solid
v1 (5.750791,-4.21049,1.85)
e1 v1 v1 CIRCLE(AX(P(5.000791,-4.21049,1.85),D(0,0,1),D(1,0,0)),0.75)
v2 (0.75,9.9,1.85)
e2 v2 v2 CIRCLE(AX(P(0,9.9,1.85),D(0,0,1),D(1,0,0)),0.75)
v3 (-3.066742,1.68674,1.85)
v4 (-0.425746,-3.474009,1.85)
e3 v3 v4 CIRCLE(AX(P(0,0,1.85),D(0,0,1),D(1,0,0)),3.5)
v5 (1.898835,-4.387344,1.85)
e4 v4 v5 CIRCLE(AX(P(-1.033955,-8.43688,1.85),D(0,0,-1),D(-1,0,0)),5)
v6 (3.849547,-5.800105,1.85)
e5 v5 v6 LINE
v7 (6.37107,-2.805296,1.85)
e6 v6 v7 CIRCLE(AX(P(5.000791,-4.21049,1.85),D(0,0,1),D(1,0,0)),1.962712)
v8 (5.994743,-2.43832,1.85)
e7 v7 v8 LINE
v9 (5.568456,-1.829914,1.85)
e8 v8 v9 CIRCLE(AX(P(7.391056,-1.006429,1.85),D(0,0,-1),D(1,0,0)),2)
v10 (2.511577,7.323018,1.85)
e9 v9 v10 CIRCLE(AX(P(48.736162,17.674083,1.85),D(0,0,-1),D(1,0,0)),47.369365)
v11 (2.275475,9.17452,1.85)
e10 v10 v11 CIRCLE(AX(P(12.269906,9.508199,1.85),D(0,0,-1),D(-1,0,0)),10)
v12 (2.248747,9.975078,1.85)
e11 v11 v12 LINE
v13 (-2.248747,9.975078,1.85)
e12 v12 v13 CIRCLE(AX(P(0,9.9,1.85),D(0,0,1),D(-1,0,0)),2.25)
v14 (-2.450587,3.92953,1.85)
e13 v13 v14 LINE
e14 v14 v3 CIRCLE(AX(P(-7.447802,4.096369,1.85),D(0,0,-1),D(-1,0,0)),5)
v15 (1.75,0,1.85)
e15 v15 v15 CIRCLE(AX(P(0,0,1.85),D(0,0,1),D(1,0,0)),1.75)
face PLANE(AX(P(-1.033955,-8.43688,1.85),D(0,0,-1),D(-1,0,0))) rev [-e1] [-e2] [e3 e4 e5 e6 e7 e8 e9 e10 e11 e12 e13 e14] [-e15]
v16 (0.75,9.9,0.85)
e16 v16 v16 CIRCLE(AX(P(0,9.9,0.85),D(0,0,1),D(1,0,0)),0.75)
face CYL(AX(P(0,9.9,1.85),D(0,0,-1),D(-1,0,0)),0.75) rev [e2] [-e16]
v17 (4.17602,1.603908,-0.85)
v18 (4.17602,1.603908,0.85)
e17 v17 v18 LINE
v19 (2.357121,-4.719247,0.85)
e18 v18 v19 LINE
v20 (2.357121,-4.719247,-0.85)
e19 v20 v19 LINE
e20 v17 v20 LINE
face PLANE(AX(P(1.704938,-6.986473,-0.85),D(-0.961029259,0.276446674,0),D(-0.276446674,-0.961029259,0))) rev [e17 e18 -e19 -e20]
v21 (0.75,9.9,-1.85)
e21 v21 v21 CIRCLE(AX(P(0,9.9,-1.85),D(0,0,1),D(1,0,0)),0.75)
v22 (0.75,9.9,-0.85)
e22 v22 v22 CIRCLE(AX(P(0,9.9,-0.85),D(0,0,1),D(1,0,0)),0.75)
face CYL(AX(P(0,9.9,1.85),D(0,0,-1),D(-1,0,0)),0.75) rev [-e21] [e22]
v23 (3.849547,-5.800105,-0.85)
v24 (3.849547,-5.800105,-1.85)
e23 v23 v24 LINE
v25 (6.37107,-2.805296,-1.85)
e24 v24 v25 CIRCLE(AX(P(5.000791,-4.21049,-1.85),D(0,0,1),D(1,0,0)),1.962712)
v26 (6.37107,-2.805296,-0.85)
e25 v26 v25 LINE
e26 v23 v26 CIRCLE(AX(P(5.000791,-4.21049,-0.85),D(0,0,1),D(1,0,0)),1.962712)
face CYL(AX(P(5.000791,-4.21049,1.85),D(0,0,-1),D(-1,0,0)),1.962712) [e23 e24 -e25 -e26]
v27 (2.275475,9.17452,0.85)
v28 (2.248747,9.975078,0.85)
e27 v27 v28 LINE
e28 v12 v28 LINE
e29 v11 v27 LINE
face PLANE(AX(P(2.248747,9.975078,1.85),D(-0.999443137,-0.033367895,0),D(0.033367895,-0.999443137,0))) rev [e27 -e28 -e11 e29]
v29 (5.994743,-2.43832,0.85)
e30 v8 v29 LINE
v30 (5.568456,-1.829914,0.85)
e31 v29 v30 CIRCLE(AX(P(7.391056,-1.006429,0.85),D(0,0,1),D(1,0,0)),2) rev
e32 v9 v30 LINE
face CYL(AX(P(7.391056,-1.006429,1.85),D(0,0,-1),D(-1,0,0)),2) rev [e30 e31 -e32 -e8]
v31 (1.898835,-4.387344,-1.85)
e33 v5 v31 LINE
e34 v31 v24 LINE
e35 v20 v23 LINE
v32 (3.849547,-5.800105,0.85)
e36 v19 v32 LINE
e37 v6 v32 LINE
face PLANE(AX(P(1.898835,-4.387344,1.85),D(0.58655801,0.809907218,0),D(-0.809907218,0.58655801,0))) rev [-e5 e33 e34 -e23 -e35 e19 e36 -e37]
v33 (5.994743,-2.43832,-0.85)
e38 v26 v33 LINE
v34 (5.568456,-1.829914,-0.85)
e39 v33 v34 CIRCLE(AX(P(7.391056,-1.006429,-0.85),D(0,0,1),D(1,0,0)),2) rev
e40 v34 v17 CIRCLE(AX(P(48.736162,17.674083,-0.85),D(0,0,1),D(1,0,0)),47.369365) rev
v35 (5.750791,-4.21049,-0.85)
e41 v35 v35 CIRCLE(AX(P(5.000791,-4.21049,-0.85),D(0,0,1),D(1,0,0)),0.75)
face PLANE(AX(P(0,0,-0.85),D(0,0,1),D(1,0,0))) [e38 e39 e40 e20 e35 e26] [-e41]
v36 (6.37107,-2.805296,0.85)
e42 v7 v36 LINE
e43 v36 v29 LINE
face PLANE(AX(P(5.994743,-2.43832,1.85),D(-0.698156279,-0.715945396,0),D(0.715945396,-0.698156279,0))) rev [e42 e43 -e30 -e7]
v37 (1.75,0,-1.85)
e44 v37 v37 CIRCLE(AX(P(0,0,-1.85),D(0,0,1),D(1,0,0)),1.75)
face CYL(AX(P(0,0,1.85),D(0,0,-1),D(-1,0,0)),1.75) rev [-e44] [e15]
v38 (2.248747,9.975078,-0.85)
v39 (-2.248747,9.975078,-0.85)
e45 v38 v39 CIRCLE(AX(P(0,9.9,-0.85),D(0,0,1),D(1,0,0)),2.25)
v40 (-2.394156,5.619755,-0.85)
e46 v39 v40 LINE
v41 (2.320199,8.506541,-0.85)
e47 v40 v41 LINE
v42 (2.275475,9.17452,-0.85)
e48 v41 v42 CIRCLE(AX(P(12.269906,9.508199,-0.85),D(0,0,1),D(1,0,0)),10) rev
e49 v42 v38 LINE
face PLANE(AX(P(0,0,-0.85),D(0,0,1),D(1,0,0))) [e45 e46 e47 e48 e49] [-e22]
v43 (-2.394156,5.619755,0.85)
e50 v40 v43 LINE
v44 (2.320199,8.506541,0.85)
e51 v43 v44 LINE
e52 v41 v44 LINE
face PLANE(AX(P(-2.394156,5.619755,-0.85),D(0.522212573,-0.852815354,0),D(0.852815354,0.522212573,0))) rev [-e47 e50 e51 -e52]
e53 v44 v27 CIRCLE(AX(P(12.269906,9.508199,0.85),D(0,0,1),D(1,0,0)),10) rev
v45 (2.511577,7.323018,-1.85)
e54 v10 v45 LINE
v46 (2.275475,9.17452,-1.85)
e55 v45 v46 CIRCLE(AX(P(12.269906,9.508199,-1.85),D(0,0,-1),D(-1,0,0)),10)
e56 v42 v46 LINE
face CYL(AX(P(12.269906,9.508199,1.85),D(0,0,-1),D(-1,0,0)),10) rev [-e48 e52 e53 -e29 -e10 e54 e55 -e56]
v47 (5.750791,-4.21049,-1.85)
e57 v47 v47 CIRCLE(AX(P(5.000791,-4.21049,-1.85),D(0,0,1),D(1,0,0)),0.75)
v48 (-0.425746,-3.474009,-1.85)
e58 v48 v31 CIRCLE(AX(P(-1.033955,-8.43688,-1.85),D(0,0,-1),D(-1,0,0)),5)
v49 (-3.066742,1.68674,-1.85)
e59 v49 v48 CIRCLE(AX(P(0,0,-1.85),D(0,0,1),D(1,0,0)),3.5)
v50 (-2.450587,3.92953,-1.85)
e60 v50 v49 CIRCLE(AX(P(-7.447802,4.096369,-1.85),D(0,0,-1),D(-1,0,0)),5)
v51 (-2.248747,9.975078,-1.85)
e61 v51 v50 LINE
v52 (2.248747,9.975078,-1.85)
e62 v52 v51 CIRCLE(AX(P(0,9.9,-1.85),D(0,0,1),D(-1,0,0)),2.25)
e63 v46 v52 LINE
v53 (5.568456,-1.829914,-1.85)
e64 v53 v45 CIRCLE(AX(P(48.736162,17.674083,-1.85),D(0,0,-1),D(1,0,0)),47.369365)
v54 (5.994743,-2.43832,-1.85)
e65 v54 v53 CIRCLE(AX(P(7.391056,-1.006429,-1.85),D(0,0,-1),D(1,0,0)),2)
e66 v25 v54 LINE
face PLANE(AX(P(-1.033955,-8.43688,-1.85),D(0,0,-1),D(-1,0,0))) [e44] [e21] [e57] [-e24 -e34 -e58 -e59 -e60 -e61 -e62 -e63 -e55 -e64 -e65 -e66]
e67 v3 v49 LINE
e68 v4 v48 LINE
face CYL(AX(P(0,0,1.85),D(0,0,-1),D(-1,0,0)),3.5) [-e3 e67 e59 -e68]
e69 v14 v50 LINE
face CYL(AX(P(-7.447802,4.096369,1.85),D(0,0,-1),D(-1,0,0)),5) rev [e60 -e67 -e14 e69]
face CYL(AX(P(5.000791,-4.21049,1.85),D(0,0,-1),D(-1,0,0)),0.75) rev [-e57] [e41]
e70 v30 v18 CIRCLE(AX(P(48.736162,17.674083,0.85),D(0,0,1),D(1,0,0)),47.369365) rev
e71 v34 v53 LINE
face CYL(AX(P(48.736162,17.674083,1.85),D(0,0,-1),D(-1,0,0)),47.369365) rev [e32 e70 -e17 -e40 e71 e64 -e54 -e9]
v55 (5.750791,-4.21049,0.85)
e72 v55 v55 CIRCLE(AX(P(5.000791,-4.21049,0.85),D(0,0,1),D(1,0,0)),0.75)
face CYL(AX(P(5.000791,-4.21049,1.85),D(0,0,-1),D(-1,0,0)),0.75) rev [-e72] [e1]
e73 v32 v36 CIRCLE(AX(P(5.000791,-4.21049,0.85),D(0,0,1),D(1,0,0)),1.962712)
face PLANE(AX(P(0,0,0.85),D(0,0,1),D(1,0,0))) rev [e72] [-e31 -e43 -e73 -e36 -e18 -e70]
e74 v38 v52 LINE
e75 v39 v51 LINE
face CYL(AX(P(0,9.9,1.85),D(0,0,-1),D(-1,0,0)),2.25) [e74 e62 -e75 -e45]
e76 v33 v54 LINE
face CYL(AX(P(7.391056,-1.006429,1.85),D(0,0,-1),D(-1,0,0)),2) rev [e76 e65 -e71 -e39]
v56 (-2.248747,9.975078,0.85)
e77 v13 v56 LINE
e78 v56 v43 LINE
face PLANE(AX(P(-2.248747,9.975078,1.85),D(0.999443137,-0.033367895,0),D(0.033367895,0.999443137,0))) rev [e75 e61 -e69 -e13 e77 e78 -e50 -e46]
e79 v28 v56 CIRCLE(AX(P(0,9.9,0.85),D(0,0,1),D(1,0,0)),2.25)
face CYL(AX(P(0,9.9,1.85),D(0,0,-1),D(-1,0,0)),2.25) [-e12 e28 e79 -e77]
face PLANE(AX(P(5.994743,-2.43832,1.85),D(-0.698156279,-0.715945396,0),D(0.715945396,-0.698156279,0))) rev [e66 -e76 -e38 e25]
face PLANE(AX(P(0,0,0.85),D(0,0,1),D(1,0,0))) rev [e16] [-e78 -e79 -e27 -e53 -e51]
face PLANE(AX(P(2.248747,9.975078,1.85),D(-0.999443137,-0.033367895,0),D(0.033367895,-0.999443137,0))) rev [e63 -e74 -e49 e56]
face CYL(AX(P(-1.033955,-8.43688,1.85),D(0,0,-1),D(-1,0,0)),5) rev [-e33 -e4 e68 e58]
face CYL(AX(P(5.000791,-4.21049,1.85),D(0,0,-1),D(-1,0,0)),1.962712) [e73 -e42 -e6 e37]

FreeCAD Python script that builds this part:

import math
import FreeCAD as App
import Part
import Sketcher
from FreeCAD import Vector
Q = App.Units.Quantity

doc = App.newDocument("Part")
body = doc.addObject("PartDesign::Body", "Body")

sketch1 = doc.addObject("Sketcher::SketchObject", "Sketch")
body.addObject(sketch1)
sketch1.AttachmentSupport = (doc.XY_Plane, [""])
sketch1.MapMode = "FlatFace"
sketch1.addGeometry([
    Part.LineSegment(Vector(-2.248747, 9.975078, 0), Vector(-2.450587, 3.92953, 0)),
    Part.ArcOfCircle(Part.Circle(Vector(-7.447802, 4.096369, 0), Vector(0, 0, 1), 5), math.radians(-28.811254), math.radians(-1.912194)),
    Part.ArcOfCircle(Part.Circle(Vector(0, 0, 0), Vector(0, 0, 1), 3.5), math.radians(151.188746), math.radians(263.01314)),
    Part.ArcOfCircle(Part.Circle(Vector(-1.033955, -8.43688, 0), Vector(0, 0, 1), 5), math.radians(54.086867), math.radians(83.01314)),
    Part.LineSegment(Vector(1.898835, -4.387344, 0), Vector(3.849547, -5.800105, 0)),
    Part.ArcOfCircle(Part.Circle(Vector(5.000791, -4.21049, 0), Vector(0, 0, 1), 1.962712), math.radians(-125.913133), math.radians(45.720731)),
    Part.LineSegment(Vector(6.37107, -2.805296, 0), Vector(5.994743, -2.43832, 0)),
    Part.ArcOfCircle(Part.Circle(Vector(7.391056, -1.006429, 0), Vector(0, 0, 1), 2), math.radians(-155.685635), math.radians(-134.279269)),
    Part.ArcOfCircle(Part.Circle(Vector(48.736162, 17.674083, 0), Vector(0, 0, 1), 47.369366), math.radians(-167.377989), math.radians(-155.685635)),
    Part.ArcOfCircle(Part.Circle(Vector(12.269906, 9.508199, 0), Vector(0, 0, 1), 10), math.radians(-178.087806), math.radians(-167.377989)),
    Part.LineSegment(Vector(2.275475, 9.17452, 0), Vector(2.248747, 9.975078, 0)),
    Part.ArcOfCircle(Part.Circle(Vector(0, 9.9, 0), Vector(0, 0, 1), 2.25), math.radians(1.912194), math.radians(178.087806)),
    Part.Circle(Vector(0, 0, 0), Vector(0, 0, 1), 1.75),
    Part.Circle(Vector(5.000791, -4.21049, 0), Vector(0, 0, 1), 0.75),
    Part.Circle(Vector(0, 9.9, 0), Vector(0, 0, 1), 0.75),
], False)
sketch1.addConstraint([
    Sketcher.Constraint("Tangent", 0, 2, 1, 2),
    Sketcher.Constraint("Tangent", 1, 1, 2, 1),
    Sketcher.Constraint("Tangent", 2, 2, 3, 2),
    Sketcher.Constraint("Tangent", 3, 1, 4, 1),
    Sketcher.Constraint("Tangent", 4, 2, 5, 1),
    Sketcher.Constraint("Tangent", 5, 2, 6, 1),
    Sketcher.Constraint("Tangent", 6, 2, 7, 2),
    Sketcher.Constraint("Tangent", 7, 1, 8, 2),
    Sketcher.Constraint("Tangent", 8, 1, 9, 2),
    Sketcher.Constraint("Tangent", 9, 1, 10, 1),
    Sketcher.Constraint("Tangent", 10, 2, 11, 1),
    Sketcher.Constraint("Tangent", 11, 2, 0, 1),
    Sketcher.Constraint("Coincident", 2, 3, -1, 1),
    Sketcher.Constraint("Coincident", 12, 3, -1, 1),
    Sketcher.Constraint("Coincident", 13, 3, 5, 3),
    Sketcher.Constraint("Coincident", 14, 3, 11, 3),
    Sketcher.Constraint("Equal", 1, 3),
    Sketcher.Constraint("Equal", 13, 14),
    Sketcher.Constraint("Symmetric", 10, 2, 11, 2, -2),
    Sketcher.Constraint("Radius", 1, Q("5 mm")),
    Sketcher.Constraint("Radius", 7, Q("2 mm")),
    Sketcher.Constraint("Radius", 9, Q("10 mm")),
    Sketcher.Constraint("Diameter", 12, Q("3.5 mm")),
    Sketcher.Constraint("Diameter", 13, Q("1.5 mm")),
    Sketcher.Constraint("Radius", 2, Q("3.5 mm")),
    Sketcher.Constraint("Radius", 11, Q("2.25 mm")),
    Sketcher.Constraint("DistanceY", -1, 1, 11, 3, Q("9.9 mm")),
    Sketcher.Constraint("Radius", 5, Q("1.962712 mm")),
    Sketcher.Constraint("Radius", 8, Q("47.369366 mm")),
    Sketcher.Constraint("DistanceY", -1, 1, 9, 3, Q("9.508199 mm")),
    Sketcher.Constraint("DistanceX", 3, 3, 4, 2, Q("4.883501 mm")),
    Sketcher.Constraint("DistanceX", 7, 1, 7, 3, Q("1.8226 mm")),
    Sketcher.Constraint("Distance", 4, Q("2.408562 mm")),
    Sketcher.Constraint("DistanceY", -1, 1, 1, 3, Q("4.096369 mm")),
    Sketcher.Constraint("DistanceY", 3, 3, -1, 1, Q("8.43688 mm")),
    Sketcher.Constraint("DistanceY", 7, 3, -1, 1, Q("1.006429 mm")),
])
pad1 = doc.addObject("PartDesign::Pad", "Pad")
body.addObject(pad1)
pad1.Profile = sketch1
pad1.Length = 3.7
pad1.Midplane = True

sketch2 = doc.addObject("Sketcher::SketchObject", "Sketch001")
body.addObject(sketch2)
sketch2.AttachmentSupport = (doc.XY_Plane, [""])
sketch2.MapMode = "FlatFace"
sketch2.addGeometry([
    Part.LineSegment(Vector(4.17602, 1.603908, 0), Vector(1.704938, -6.986473, 0)),
    Part.LineSegment(Vector(1.704938, -6.986473, 0), Vector(6.179555, -9.771778, 0)),
    Part.LineSegment(Vector(6.179555, -9.771778, 0), Vector(8.214803, -2.706528, 0)),
    Part.LineSegment(Vector(8.214803, -2.706528, 0), Vector(4.17602, 1.603908, 0)),
    Part.LineSegment(Vector(-2.394156, 5.619755, 0), Vector(2.320199, 8.506541, 0)),
    Part.LineSegment(Vector(2.320199, 8.506541, 0), Vector(8.539776, 16.638706, 0)),
    Part.LineSegment(Vector(8.539776, 16.638706, 0), Vector(-7.89199, 11.770867, 0)),
    Part.LineSegment(Vector(-7.89199, 11.770867, 0), Vector(-2.394156, 5.619755, 0)),
], False)
sketch2.addConstraint([
    Sketcher.Constraint("Coincident", 0, 2, 1, 1),
    Sketcher.Constraint("Coincident", 1, 2, 2, 1),
    Sketcher.Constraint("Coincident", 2, 2, 3, 1),
    Sketcher.Constraint("Coincident", 3, 2, 0, 1),
    Sketcher.Constraint("Coincident", 4, 2, 5, 1),
    Sketcher.Constraint("Coincident", 5, 2, 6, 1),
    Sketcher.Constraint("Coincident", 6, 2, 7, 1),
    Sketcher.Constraint("Coincident", 7, 2, 4, 1),
    Sketcher.Constraint("DistanceX", -1, 1, 4, 2, Q("2.320199 mm")),
    Sketcher.Constraint("DistanceY", 3, 2, 5, 2, Q("15.034798 mm")),
    Sketcher.Constraint("Distance", 0, Q("8.93873 mm")),
    Sketcher.Constraint("Distance", 2, Q("7.35255 mm")),
    Sketcher.Constraint("Distance", 4, Q("5.52799 mm")),
    Sketcher.Constraint("Distance", 5, Q("10.237932 mm")),
    Sketcher.Constraint("Distance", 7, Q("8.249991 mm")),
    Sketcher.Constraint("DistanceX", -1, 1, 0, 2, Q("1.704938 mm")),
    Sketcher.Constraint("DistanceY", 1, 2, -1, 1, Q("9.771778 mm")),
    Sketcher.Constraint("DistanceY", 2, 2, -1, 1, Q("2.706528 mm")),
    Sketcher.Constraint("DistanceX", -1, 1, 3, 2, Q("4.17602 mm")),
    Sketcher.Constraint("DistanceY", -1, 1, 4, 2, Q("8.506541 mm")),
    Sketcher.Constraint("DistanceX", 6, 2, -1, 1, Q("7.89199 mm")),
    Sketcher.Constraint("DistanceX", 0, 2, 5, 2, Q("6.834838 mm")),
    Sketcher.Constraint("DistanceX", 1, 2, 5, 2, Q("2.360221 mm")),
    Sketcher.Constraint("DistanceY", 3, 2, 6, 2, Q("10.166959 mm")),
])
pocket1 = doc.addObject("PartDesign::Pocket", "Pocket")
body.addObject(pocket1)
pocket1.Profile = sketch2
pocket1.Length = 1.7
pocket1.Midplane = True

doc.recompute()
